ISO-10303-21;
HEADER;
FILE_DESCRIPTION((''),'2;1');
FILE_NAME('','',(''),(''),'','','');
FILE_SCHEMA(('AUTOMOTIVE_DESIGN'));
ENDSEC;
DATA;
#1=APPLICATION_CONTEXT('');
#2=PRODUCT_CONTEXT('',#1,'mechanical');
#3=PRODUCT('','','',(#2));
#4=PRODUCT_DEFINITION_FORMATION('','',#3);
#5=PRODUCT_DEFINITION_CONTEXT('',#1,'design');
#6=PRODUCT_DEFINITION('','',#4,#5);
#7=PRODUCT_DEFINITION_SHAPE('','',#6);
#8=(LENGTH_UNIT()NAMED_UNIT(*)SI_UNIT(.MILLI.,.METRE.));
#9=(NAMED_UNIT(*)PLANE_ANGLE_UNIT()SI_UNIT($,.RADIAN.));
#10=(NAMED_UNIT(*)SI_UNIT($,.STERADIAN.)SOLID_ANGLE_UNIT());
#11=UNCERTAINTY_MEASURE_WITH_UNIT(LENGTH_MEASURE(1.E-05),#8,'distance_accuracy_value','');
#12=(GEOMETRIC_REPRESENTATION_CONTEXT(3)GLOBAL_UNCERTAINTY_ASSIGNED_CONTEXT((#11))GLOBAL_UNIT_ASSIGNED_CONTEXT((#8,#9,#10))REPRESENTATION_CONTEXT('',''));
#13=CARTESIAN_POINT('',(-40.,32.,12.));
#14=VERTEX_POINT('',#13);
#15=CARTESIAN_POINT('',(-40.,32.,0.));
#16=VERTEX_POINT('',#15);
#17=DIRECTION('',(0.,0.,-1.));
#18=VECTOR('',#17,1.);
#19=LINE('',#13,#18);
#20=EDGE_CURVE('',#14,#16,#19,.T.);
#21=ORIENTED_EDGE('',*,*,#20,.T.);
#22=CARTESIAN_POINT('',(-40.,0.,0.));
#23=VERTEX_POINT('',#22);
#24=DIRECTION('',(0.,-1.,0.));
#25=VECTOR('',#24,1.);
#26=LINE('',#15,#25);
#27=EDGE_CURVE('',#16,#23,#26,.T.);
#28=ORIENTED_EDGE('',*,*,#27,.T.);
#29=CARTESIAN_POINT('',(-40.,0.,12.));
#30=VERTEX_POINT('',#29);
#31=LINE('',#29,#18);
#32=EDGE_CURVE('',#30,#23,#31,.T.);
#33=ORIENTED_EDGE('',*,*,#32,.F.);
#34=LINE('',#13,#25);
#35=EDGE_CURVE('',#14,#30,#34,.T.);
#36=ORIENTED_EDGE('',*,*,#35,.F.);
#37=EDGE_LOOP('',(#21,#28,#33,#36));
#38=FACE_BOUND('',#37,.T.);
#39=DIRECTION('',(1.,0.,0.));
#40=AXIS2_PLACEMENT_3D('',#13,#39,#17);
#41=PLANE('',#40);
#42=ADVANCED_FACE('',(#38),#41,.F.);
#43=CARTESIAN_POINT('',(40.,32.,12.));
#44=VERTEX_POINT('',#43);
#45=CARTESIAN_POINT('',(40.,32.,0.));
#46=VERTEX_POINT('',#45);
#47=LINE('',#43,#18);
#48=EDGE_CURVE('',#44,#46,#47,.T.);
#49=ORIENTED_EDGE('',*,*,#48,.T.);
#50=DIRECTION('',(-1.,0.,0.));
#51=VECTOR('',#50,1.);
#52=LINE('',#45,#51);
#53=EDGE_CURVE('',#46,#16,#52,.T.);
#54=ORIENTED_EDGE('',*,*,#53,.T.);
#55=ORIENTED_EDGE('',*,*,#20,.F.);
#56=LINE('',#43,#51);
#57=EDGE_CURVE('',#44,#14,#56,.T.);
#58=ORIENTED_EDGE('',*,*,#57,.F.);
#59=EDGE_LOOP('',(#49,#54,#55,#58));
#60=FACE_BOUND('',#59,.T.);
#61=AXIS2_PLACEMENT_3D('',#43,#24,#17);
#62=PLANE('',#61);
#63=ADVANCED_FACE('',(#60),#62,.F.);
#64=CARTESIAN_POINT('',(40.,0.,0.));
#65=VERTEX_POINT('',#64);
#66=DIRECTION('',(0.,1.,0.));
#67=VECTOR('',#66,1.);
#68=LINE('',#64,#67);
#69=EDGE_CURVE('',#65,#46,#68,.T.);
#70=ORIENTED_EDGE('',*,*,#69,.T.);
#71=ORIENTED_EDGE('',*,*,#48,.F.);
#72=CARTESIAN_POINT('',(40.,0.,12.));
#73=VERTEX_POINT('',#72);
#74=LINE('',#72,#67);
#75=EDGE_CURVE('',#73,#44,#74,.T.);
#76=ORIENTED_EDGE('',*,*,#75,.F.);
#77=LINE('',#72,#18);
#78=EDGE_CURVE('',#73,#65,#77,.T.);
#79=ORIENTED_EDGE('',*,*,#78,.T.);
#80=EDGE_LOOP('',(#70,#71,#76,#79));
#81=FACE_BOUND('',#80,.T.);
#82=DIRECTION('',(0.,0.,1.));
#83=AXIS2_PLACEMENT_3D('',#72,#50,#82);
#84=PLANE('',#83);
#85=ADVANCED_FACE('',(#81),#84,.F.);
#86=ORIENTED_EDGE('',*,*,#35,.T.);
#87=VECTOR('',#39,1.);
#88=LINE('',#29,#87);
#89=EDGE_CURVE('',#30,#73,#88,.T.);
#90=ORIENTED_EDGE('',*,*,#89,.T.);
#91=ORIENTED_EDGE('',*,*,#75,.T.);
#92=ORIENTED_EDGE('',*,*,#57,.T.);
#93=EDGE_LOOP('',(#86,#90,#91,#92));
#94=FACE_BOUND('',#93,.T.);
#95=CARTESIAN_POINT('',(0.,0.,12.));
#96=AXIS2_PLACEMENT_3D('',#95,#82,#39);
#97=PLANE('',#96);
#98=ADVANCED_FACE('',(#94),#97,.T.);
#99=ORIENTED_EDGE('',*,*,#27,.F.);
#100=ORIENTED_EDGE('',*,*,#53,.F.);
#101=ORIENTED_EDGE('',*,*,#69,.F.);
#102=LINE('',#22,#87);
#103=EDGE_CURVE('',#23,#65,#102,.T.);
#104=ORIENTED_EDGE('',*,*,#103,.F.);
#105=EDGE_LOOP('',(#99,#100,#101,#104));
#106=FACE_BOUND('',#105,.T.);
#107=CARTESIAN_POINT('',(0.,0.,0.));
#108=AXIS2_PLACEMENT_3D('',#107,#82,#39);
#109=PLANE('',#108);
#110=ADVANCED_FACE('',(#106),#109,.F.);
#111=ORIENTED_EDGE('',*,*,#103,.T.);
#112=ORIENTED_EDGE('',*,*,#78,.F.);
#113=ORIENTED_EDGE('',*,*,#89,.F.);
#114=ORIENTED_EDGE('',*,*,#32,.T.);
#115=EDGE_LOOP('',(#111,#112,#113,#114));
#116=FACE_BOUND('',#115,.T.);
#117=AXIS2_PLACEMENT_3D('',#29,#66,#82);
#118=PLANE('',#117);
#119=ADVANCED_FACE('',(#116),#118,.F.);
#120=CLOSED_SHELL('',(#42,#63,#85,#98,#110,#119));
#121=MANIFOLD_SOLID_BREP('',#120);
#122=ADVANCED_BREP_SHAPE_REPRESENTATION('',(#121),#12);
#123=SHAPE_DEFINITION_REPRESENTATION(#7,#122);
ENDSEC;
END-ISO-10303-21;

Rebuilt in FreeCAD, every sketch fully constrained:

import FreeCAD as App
import Part
import Sketcher

V = App.Vector


def add_polygon(sketch, points):
    """Adds a closed chain of lines whose ends are joined by coincident constraints."""
    first, n = sketch.GeometryCount, len(points)
    for a, b in zip(points, points[1:] + points[:1]):
        sketch.addGeometry(Part.LineSegment(App.Vector(*a, 0), App.Vector(*b, 0)), False)
    for i in range(n):
        sketch.addConstraint(Sketcher.Constraint("Coincident", first + i, 2, first + (i + 1) % n, 1))

doc = App.newDocument("Part")
body = doc.addObject("PartDesign::Body", "Body")

# Sketch on XY plane
sketch1 = doc.addObject("Sketcher::SketchObject", "Sketch")
body.addObject(sketch1)
sketch1.AttachmentSupport = (doc.XY_Plane, [""])
sketch1.MapMode = "FlatFace"
add_polygon(sketch1, [(-40, 32), (-40, 0), (40, 0), (40, 32)])  # lines 0-3
sketch1.addConstraint(Sketcher.Constraint("Vertical", 0))
sketch1.addConstraint(Sketcher.Constraint("Horizontal", 1))
sketch1.addConstraint(Sketcher.Constraint("Vertical", 2))
sketch1.addConstraint(Sketcher.Constraint("Horizontal", 3))
sketch1.addConstraint(Sketcher.Constraint("Symmetric", 0, 2, 1, 2, -1, 1))
sketch1.addConstraint(Sketcher.Constraint("DistanceX", 1, 1, 1, 2, 80.0))
sketch1.addConstraint(Sketcher.Constraint("DistanceY", 0, 2, 0, 1, 32.0))
pad1 = doc.addObject("PartDesign::Pad", "Pad")
body.addObject(pad1)
pad1.Profile = sketch1
pad1.Length = 12

doc.recompute()
